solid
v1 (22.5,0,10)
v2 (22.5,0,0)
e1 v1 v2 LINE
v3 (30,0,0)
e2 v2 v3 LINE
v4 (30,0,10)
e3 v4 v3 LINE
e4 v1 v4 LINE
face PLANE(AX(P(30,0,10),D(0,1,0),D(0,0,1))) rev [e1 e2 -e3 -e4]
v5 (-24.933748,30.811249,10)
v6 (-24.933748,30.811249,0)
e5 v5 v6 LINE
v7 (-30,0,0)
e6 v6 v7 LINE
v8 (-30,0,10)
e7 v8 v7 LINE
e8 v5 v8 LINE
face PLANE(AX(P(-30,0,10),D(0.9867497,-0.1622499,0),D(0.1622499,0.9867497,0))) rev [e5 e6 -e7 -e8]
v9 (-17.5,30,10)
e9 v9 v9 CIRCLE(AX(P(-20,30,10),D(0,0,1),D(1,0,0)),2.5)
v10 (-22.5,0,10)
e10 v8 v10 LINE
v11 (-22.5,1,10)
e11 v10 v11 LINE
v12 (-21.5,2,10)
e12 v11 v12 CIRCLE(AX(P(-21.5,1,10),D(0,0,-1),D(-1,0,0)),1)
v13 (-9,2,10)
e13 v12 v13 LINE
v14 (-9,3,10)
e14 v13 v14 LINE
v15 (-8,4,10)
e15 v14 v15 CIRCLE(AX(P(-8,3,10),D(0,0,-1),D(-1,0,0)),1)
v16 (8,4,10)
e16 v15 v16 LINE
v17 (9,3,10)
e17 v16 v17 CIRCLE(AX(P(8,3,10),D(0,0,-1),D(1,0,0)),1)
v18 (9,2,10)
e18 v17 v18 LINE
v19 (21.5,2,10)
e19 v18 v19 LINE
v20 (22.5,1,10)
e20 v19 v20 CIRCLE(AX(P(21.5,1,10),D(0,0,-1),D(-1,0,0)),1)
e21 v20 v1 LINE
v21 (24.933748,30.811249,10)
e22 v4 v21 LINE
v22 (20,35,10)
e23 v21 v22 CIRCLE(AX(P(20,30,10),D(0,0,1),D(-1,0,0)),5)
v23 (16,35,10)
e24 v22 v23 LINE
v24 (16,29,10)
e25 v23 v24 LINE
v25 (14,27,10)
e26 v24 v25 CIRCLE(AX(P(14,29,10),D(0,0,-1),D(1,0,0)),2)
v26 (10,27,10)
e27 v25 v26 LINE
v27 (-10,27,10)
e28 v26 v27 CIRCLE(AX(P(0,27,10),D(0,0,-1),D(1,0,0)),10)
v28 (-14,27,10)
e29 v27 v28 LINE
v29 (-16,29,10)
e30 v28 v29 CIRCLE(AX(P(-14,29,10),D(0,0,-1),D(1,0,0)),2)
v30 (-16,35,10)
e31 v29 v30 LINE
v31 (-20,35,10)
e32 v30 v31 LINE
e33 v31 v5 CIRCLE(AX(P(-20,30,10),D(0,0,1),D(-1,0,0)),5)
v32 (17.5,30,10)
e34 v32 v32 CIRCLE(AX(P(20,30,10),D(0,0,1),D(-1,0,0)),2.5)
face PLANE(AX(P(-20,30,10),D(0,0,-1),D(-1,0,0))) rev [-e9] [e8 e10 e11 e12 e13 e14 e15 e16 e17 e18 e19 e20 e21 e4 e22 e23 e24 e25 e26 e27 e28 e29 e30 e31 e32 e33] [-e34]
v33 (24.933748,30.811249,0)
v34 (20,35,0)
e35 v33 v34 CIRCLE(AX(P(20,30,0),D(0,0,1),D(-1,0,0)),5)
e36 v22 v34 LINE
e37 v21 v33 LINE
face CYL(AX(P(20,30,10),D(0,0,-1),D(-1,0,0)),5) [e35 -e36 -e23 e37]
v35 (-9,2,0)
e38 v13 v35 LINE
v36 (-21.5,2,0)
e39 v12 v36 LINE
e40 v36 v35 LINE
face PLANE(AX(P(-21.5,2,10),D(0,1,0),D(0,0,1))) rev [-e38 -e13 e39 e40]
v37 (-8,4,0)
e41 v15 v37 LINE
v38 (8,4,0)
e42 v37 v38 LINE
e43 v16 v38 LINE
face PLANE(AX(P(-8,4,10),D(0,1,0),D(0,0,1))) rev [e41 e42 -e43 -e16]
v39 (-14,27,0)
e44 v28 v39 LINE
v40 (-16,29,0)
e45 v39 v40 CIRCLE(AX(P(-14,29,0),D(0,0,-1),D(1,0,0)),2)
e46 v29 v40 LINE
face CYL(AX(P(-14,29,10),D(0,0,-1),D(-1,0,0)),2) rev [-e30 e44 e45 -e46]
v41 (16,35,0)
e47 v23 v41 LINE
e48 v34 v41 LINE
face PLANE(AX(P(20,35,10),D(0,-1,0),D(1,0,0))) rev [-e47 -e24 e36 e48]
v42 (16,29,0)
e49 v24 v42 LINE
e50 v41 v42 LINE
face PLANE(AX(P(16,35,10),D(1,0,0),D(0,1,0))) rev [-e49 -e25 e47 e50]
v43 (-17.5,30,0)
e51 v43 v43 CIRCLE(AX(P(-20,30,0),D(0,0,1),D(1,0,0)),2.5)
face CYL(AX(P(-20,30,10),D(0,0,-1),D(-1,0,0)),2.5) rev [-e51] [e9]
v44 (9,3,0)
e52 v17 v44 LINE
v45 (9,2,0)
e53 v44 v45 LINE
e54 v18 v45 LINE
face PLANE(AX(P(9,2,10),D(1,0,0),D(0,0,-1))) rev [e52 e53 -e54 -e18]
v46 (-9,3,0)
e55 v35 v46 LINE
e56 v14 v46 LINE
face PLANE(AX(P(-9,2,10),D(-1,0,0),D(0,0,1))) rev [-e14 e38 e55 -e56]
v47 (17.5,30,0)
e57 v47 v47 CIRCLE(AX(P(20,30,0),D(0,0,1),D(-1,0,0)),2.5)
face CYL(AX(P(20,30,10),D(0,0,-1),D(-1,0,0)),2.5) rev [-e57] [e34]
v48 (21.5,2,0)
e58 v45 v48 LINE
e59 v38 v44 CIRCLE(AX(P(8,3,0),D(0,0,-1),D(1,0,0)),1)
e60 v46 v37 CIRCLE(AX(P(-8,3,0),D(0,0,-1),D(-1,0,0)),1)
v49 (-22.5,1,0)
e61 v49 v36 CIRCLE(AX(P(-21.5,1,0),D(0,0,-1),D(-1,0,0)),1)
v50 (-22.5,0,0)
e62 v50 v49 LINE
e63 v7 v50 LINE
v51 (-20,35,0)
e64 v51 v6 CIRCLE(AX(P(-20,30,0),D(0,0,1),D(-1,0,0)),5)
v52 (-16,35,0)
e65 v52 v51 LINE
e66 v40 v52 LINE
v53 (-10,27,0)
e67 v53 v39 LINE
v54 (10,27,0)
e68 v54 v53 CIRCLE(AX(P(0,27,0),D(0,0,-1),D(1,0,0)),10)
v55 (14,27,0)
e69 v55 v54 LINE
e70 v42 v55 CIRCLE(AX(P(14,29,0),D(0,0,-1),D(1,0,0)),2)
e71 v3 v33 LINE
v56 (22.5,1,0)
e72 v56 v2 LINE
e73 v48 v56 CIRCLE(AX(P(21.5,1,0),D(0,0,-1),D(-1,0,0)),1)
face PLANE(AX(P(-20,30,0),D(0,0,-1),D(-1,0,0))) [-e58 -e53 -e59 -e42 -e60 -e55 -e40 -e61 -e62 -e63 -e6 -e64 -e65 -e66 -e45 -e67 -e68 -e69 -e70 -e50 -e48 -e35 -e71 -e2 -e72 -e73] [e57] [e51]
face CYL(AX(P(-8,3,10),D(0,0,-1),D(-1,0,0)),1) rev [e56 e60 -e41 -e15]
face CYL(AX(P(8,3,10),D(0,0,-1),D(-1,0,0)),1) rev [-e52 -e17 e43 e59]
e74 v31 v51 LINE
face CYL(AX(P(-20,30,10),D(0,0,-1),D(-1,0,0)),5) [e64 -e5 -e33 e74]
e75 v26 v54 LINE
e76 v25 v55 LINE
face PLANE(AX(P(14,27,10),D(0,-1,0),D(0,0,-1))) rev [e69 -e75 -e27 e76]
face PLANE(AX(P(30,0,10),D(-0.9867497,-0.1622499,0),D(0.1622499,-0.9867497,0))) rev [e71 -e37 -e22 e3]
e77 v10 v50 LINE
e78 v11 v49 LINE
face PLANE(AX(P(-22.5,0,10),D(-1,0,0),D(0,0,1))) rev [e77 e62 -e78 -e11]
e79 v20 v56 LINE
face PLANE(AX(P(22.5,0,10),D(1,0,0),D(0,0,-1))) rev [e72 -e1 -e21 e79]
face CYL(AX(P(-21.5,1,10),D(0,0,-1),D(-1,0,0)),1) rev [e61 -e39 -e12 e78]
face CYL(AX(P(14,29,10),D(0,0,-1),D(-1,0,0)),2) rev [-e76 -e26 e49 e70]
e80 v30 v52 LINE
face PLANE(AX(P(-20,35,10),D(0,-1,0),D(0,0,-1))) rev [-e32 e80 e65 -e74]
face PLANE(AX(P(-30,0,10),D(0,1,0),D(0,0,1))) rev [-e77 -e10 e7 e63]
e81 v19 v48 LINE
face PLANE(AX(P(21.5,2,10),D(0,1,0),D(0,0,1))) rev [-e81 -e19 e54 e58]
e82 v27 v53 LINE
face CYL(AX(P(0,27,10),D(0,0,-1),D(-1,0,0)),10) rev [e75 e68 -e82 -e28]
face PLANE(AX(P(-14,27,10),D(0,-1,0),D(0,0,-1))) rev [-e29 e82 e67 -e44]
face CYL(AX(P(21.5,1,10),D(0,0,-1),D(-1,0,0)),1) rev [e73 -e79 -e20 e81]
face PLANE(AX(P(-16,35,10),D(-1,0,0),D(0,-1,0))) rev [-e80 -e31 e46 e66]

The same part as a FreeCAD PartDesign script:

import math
import FreeCAD as App
import Part
import Sketcher

V = App.Vector
Q = App.Units.Quantity

doc = App.newDocument("Part")
body = doc.addObject("PartDesign::Body", "Body")

sketch1 = doc.addObject("Sketcher::SketchObject", "Sketch")
body.addObject(sketch1)
sketch1.AttachmentSupport = (doc.XY_Plane, [""])
sketch1.MapMode = "FlatFace"
sketch1.addGeometry([
    Part.LineSegment(V(-30, 0, 0), V(-22.5, 0, 0)),
    Part.LineSegment(V(-22.5, 0, 0), V(-22.5, 1, 0)),
    Part.ArcOfCircle(Part.Circle(V(-21.5, 1, 0), V(0, 0, 1), 1), math.radians(90), math.radians(180)),
    Part.LineSegment(V(-21.5, 2, 0), V(-9, 2, 0)),
    Part.LineSegment(V(-9, 2, 0), V(-9, 3, 0)),
    Part.ArcOfCircle(Part.Circle(V(-8, 3, 0), V(0, 0, 1), 1), math.radians(90), math.radians(180)),
    Part.LineSegment(V(-8, 4, 0), V(8, 4, 0)),
    Part.ArcOfCircle(Part.Circle(V(8, 3, 0), V(0, 0, 1), 1), math.radians(0), math.radians(90)),
    Part.LineSegment(V(9, 3, 0), V(9, 2, 0)),
    Part.LineSegment(V(9, 2, 0), V(21.5, 2, 0)),
    Part.ArcOfCircle(Part.Circle(V(21.5, 1, 0), V(0, 0, 1), 1), math.radians(0), math.radians(90)),
    Part.LineSegment(V(22.5, 1, 0), V(22.5, 0, 0)),
    Part.LineSegment(V(22.5, 0, 0), V(30, 0, 0)),
    Part.LineSegment(V(30, 0, 0), V(24.9, 30.8, 0)),
    Part.ArcOfCircle(Part.Circle(V(20, 30, 0), V(0, 0, 1), 5), math.radians(9), math.radians(90)),
    Part.LineSegment(V(20, 35, 0), V(16, 35, 0)),
    Part.LineSegment(V(16, 35, 0), V(16, 29, 0)),
    Part.ArcOfCircle(Part.Circle(V(14, 29, 0), V(0, 0, 1), 2), math.radians(-90), math.radians(0)),
    Part.LineSegment(V(14, 27, 0), V(10, 27, 0)),
    Part.ArcOfCircle(Part.Circle(V(0, 27, 0), V(0, 0, 1), 10), math.radians(180), math.radians(360)),
    Part.LineSegment(V(-10, 27, 0), V(-14, 27, 0)),
    Part.ArcOfCircle(Part.Circle(V(-14, 29, 0), V(0, 0, 1), 2), math.radians(-180), math.radians(-90)),
    Part.LineSegment(V(-16, 29, 0), V(-16, 35, 0)),
    Part.LineSegment(V(-16, 35, 0), V(-20, 35, 0)),
    Part.ArcOfCircle(Part.Circle(V(-20, 30, 0), V(0, 0, 1), 5), math.radians(90), math.radians(171)),
    Part.LineSegment(V(-24.9, 30.8, 0), V(-30, 0, 0)),
    Part.Circle(V(-20, 30, 0), V(0, 0, 1), 2.5),
    Part.Circle(V(20, 30, 0), V(0, 0, 1), 2.5),
], False)
sketch1.addConstraint([
    Sketcher.Constraint("Coincident", 0, 2, 1, 1),
    Sketcher.Constraint("Tangent", 1, 2, 2, 2),
    Sketcher.Constraint("Tangent", 2, 1, 3, 1),
    Sketcher.Constraint("Coincident", 3, 2, 4, 1),
    Sketcher.Constraint("Tangent", 4, 2, 5, 2),
    Sketcher.Constraint("Tangent", 5, 1, 6, 1),
    Sketcher.Constraint("Tangent", 6, 2, 7, 2),
    Sketcher.Constraint("Tangent", 7, 1, 8, 1),
    Sketcher.Constraint("Coincident", 8, 2, 9, 1),
    Sketcher.Constraint("Tangent", 9, 2, 10, 2),
    Sketcher.Constraint("Tangent", 10, 1, 11, 1),
    Sketcher.Constraint("Coincident", 11, 2, 12, 1),
    Sketcher.Constraint("Coincident", 12, 2, 13, 1),
    Sketcher.Constraint("Tangent", 13, 2, 14, 1),
    Sketcher.Constraint("Tangent", 14, 2, 15, 1),
    Sketcher.Constraint("Coincident", 15, 2, 16, 1),
    Sketcher.Constraint("Tangent", 16, 2, 17, 2),
    Sketcher.Constraint("Tangent", 17, 1, 18, 1),
    Sketcher.Constraint("Coincident", 18, 2, 19, 2),
    Sketcher.Constraint("Coincident", 19, 1, 20, 1),
    Sketcher.Constraint("Tangent", 20, 2, 21, 2),
    Sketcher.Constraint("Tangent", 21, 1, 22, 1),
    Sketcher.Constraint("Coincident", 22, 2, 23, 1),
    Sketcher.Constraint("Tangent", 23, 2, 24, 1),
    Sketcher.Constraint("Tangent", 24, 2, 25, 1),
    Sketcher.Constraint("Coincident", 25, 2, 0, 1),
    Sketcher.Constraint("Horizontal", 0),
    Sketcher.Constraint("Vertical", 1),
    Sketcher.Constraint("Horizontal", 3),
    Sketcher.Constraint("Vertical", 4),
    Sketcher.Constraint("Horizontal", 6),
    Sketcher.Constraint("Vertical", 8),
    Sketcher.Constraint("Horizontal", 9),
    Sketcher.Constraint("Vertical", 11),
    Sketcher.Constraint("Horizontal", 12),
    Sketcher.Constraint("Horizontal", 15),
    Sketcher.Constraint("Vertical", 16),
    Sketcher.Constraint("Horizontal", 18),
    Sketcher.Constraint("Horizontal", 20),
    Sketcher.Constraint("Vertical", 22),
    Sketcher.Constraint("Horizontal", 23),
    Sketcher.Constraint("Coincident", 26, 3, 24, 3),
    Sketcher.Constraint("Coincident", 27, 3, 14, 3),
    Sketcher.Constraint("Equal", 2, 5),
    Sketcher.Constraint("Equal", 5, 7),
    Sketcher.Constraint("Equal", 7, 10),
    Sketcher.Constraint("Equal", 17, 21),
    Sketcher.Constraint("Equal", 14, 24),
    Sketcher.Constraint("Equal", 26, 27),
    Sketcher.Constraint("Symmetric", 0, 2, 11, 2, -1, 1),
    Sketcher.Constraint("Symmetric", 17, 3, 21, 3, -2),
    Sketcher.Constraint("Symmetric", 14, 3, 24, 3, -2),
    Sketcher.Constraint("Symmetric", 3, 2, 8, 2, -2),
    Sketcher.Constraint("Symmetric", 12, 2, 25, 2, -2),
    Sketcher.Constraint("PointOnObject", 19, 3, -2),
    Sketcher.Constraint("Horizontal", 19, 3, 17, 1),
    Sketcher.Constraint("Equal", 15, 18),
    Sketcher.Constraint("Equal", 1, 4),
    Sketcher.Constraint("Diameter", 26, Q("5 mm")),
    Sketcher.Constraint("Radius", 2, Q("1 mm")),
    Sketcher.Constraint("Radius", 14, Q("5 mm")),
    Sketcher.Constraint("Radius", 17, Q("2 mm")),
    Sketcher.Constraint("Radius", 19, Q("10 mm")),
    Sketcher.Constraint("DistanceX", 6, 1, 6, 2, Q("16 mm")),
    Sketcher.Constraint("DistanceX", 15, 2, 15, 1, Q("4 mm")),
    Sketcher.Constraint("DistanceY", 1, 1, 1, 2, Q("1 mm")),
    Sketcher.Constraint("DistanceY", 16, 2, 16, 1, Q("6 mm")),
    Sketcher.Constraint("DistanceX", 0, 1, 0, 2, Q("7.5 mm")),
    Sketcher.Constraint("DistanceX", 3, 1, 3, 2, Q("12.5 mm")),
    Sketcher.Constraint("DistanceY", -1, 1, 14, 3, Q("30 mm")),
])
pad1 = doc.addObject("PartDesign::Pad", "Pad")
body.addObject(pad1)
pad1.Profile = sketch1
pad1.Length = 10

doc.recompute()
